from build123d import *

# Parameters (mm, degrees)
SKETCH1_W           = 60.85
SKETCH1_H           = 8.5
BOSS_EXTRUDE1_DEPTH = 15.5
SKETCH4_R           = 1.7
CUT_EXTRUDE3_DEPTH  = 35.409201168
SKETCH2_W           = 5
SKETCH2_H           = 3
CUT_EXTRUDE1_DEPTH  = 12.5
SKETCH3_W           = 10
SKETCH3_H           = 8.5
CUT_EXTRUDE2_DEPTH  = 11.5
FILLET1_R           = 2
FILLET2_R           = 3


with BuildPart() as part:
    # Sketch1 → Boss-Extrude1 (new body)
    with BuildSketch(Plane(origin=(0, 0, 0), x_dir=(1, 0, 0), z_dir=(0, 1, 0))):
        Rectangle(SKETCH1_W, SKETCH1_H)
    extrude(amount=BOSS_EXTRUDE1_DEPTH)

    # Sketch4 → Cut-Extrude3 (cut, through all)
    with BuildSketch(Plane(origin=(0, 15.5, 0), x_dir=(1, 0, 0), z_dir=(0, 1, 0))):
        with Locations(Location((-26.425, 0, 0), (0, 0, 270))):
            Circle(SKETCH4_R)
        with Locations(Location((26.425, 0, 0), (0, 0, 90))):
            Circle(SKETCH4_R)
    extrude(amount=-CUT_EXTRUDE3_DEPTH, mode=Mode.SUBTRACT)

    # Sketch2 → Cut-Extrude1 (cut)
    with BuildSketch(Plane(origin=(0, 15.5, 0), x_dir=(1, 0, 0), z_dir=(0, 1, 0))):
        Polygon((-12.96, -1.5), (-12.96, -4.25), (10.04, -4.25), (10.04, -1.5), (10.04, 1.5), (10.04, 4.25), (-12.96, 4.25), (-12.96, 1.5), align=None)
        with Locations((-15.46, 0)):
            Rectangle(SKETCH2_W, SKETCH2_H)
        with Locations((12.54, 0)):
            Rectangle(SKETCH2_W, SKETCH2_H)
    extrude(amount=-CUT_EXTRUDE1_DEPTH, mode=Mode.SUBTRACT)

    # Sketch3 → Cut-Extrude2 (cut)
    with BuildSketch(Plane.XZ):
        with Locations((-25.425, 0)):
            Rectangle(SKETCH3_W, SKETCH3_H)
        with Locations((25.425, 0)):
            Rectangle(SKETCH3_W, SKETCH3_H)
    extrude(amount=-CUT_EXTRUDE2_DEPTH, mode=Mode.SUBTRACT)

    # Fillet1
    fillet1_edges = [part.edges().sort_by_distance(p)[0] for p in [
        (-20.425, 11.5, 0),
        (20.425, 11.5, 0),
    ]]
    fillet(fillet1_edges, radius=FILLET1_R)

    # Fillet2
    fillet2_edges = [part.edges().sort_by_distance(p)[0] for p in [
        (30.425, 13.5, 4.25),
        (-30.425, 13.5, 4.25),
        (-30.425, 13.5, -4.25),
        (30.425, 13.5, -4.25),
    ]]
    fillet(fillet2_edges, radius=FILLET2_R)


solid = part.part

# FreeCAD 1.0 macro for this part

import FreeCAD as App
import Part
import Sketcher

V = App.Vector
Q = App.Units.Quantity


def edges_at(feature, points):
    """Names of the edges that pass closest to the given points."""
    edges = feature.Shape.Edges
    near = lambda p: min(range(len(edges)), key=lambda i: edges[i].distToShape(Part.Vertex(*p))[0])
    return sorted({f"Edge{near(p) + 1}" for p in points})

doc = App.newDocument("Part")
body = doc.addObject("PartDesign::Body", "Body")

# Sketch on XZ plane
sketch1 = doc.addObject("Sketcher::SketchObject", "Sketch")
body.addObject(sketch1)
sketch1.AttachmentSupport = (doc.XZ_Plane, [""])
sketch1.MapMode = "FlatFace"
sketch1.addGeometry([
    Part.LineSegment(V(-30.425, -4.25, 0), V(-30.425, 4.25, 0)),
    Part.LineSegment(V(-30.425, 4.25, 0), V(30.425, 4.25, 0)),
    Part.LineSegment(V(30.425, 4.25, 0), V(30.425, -4.25, 0)),
    Part.LineSegment(V(30.425, -4.25, 0), V(-30.425, -4.25, 0)),
], False)
sketch1.addConstraint([
    Sketcher.Constraint("Coincident", 0, 2, 1, 1),
    Sketcher.Constraint("Coincident", 1, 2, 2, 1),
    Sketcher.Constraint("Coincident", 2, 2, 3, 1),
    Sketcher.Constraint("Coincident", 3, 2, 0, 1),
    Sketcher.Constraint("Vertical", 0),
    Sketcher.Constraint("Horizontal", 1),
    Sketcher.Constraint("Vertical", 2),
    Sketcher.Constraint("Horizontal", 3),
    Sketcher.Constraint("Symmetric", 0, 2, 2, 2, -1, 1),
    Sketcher.Constraint("DistanceY", 0, 1, 0, 2, Q("8.5 mm")),
    Sketcher.Constraint("DistanceX", 1, 1, 1, 2, Q("60.85 mm")),
])
pad1 = doc.addObject("PartDesign::Pad", "Pad")
body.addObject(pad1)
pad1.Profile = sketch1
pad1.Length = 15.5
pad1.Reversed = True

# Sketch on XZ plane
sketch2 = doc.addObject("Sketcher::SketchObject", "Sketch001")
body.addObject(sketch2)
sketch2.AttachmentSupport = (doc.XZ_Plane, [""])
sketch2.MapMode = "FlatFace"
sketch2.AttachmentOffset = App.Placement(V(0, 0, -15.5), App.Rotation())
sketch2.addGeometry([
    Part.Circle(V(-26.425, 0, 0), V(0, 0, 1), 1.7),
    Part.Circle(V(26.425, 0, 0), V(0, 0, 1), 1.7),
], False)
sketch2.addConstraint([
    Sketcher.Constraint("Equal", 0, 1),
    Sketcher.Constraint("Symmetric", 0, 3, 1, 3, -1, 1),
    Sketcher.Constraint("PointOnObject", 0, 3, -1),
    Sketcher.Constraint("Diameter", 0, Q("3.4 mm")),
    Sketcher.Constraint("DistanceX", 0, 3, 1, 3, Q("52.85 mm")),
])
pocket1 = doc.addObject("PartDesign::Pocket", "Pocket")
body.addObject(pocket1)
pocket1.Profile = sketch2
pocket1.Type = "ThroughAll"
pocket1.Reversed = True

# Sketch on XZ plane
sketch3 = doc.addObject("Sketcher::SketchObject", "Sketch002")
body.addObject(sketch3)
sketch3.AttachmentSupport = (doc.XZ_Plane, [""])
sketch3.MapMode = "FlatFace"
sketch3.AttachmentOffset = App.Placement(V(0, 0, -15.5), App.Rotation())
sketch3.addGeometry([
    Part.LineSegment(V(-12.96, 4.25, 0), V(10.04, 4.25, 0)),  # 0
    Part.LineSegment(V(10.04, 4.25, 0), V(10.04, 1.5, 0)),  # 1
    Part.LineSegment(V(10.04, 1.5, 0), V(15.04, 1.5, 0)),  # 2
    Part.LineSegment(V(15.04, 1.5, 0), V(15.04, -1.5, 0)),  # 3
    Part.LineSegment(V(15.04, -1.5, 0), V(10.04, -1.5, 0)),  # 4
    Part.LineSegment(V(10.04, -1.5, 0), V(10.04, -4.25, 0)),  # 5
    Part.LineSegment(V(10.04, -4.25, 0), V(-12.96, -4.25, 0)),  # 6
    Part.LineSegment(V(-12.96, -4.25, 0), V(-12.96, -1.5, 0)),  # 7
    Part.LineSegment(V(-12.96, -1.5, 0), V(-17.96, -1.5, 0)),  # 8
    Part.LineSegment(V(-17.96, -1.5, 0), V(-17.96, 1.5, 0)),  # 9
    Part.LineSegment(V(-17.96, 1.5, 0), V(-12.96, 1.5, 0)),  # 10
    Part.LineSegment(V(-12.96, 1.5, 0), V(-12.96, 4.25, 0)),  # 11
], False)
sketch3.addConstraint([
    Sketcher.Constraint("Coincident", 0, 2, 1, 1),
    Sketcher.Constraint("Coincident", 1, 2, 2, 1),
    Sketcher.Constraint("Coincident", 2, 2, 3, 1),
    Sketcher.Constraint("Coincident", 3, 2, 4, 1),
    Sketcher.Constraint("Coincident", 4, 2, 5, 1),
    Sketcher.Constraint("Coincident", 5, 2, 6, 1),
    Sketcher.Constraint("Coincident", 6, 2, 7, 1),
    Sketcher.Constraint("Coincident", 7, 2, 8, 1),
    Sketcher.Constraint("Coincident", 8, 2, 9, 1),
    Sketcher.Constraint("Coincident", 9, 2, 10, 1),
    Sketcher.Constraint("Coincident", 10, 2, 11, 1),
    Sketcher.Constraint("Coincident", 11, 2, 0, 1),
    Sketcher.Constraint("Horizontal", 0),
    Sketcher.Constraint("Vertical", 1),
    Sketcher.Constraint("Horizontal", 2),
    Sketcher.Constraint("Vertical", 3),
    Sketcher.Constraint("Horizontal", 4),
    Sketcher.Constraint("Vertical", 5),
    Sketcher.Constraint("Horizontal", 6),
    Sketcher.Constraint("Vertical", 7),
    Sketcher.Constraint("Horizontal", 8),
    Sketcher.Constraint("Vertical", 9),
    Sketcher.Constraint("Horizontal", 10),
    Sketcher.Constraint("Vertical", 11),
    Sketcher.Constraint("Symmetric", 1, 2, 4, 2, -1),
    Sketcher.Constraint("Symmetric", 7, 2, 10, 2, -1),
    Sketcher.Constraint("Horizontal", 4, 2, 7, 2),
    Sketcher.Constraint("Equal", 4, 8),
    Sketcher.Constraint("Equal", 1, 5),
    Sketcher.Constraint("DistanceX", 0, 1, 0, 2, Q("23 mm")),
    Sketcher.Constraint("DistanceX", 2, 1, 2, 2, Q("5 mm")),
    Sketcher.Constraint("DistanceY", 3, 2, 3, 1, Q("3 mm")),
    Sketcher.Constraint("DistanceY", 1, 2, 1, 1, Q("2.75 mm")),
    Sketcher.Constraint("DistanceX", -1, 1, 0, 2, Q("10.04 mm")),
])
pocket2 = doc.addObject("PartDesign::Pocket", "Pocket001")
body.addObject(pocket2)
pocket2.Profile = sketch3
pocket2.Length = 12.5
pocket2.Reversed = True

# Sketch on XZ plane
sketch4 = doc.addObject("Sketcher::SketchObject", "Sketch003")
body.addObject(sketch4)
sketch4.AttachmentSupport = (doc.XZ_Plane, [""])
sketch4.MapMode = "FlatFace"
sketch4.addGeometry([
    Part.LineSegment(V(-30.425, 4.25, 0), V(-30.425, -4.25, 0)),  # 0
    Part.LineSegment(V(-30.425, -4.25, 0), V(-20.425, -4.25, 0)),  # 1
    Part.LineSegment(V(-20.425, -4.25, 0), V(-20.425, 4.25, 0)),  # 2
    Part.LineSegment(V(-20.425, 4.25, 0), V(-30.425, 4.25, 0)),  # 3
    Part.LineSegment(V(20.425, 4.25, 0), V(20.425, -4.25, 0)),  # 4
    Part.LineSegment(V(20.425, -4.25, 0), V(30.425, -4.25, 0)),  # 5
    Part.LineSegment(V(30.425, -4.25, 0), V(30.425, 4.25, 0)),  # 6
    Part.LineSegment(V(30.425, 4.25, 0), V(20.425, 4.25, 0)),  # 7
], False)
sketch4.addConstraint([
    Sketcher.Constraint("Coincident", 0, 2, 1, 1),
    Sketcher.Constraint("Coincident", 1, 2, 2, 1),
    Sketcher.Constraint("Coincident", 2, 2, 3, 1),
    Sketcher.Constraint("Coincident", 3, 2, 0, 1),
    Sketcher.Constraint("Coincident", 4, 2, 5, 1),
    Sketcher.Constraint("Coincident", 5, 2, 6, 1),
    Sketcher.Constraint("Coincident", 6, 2, 7, 1),
    Sketcher.Constraint("Coincident", 7, 2, 4, 1),
    Sketcher.Constraint("Vertical", 0),
    Sketcher.Constraint("Horizontal", 1),
    Sketcher.Constraint("Vertical", 2),
    Sketcher.Constraint("Horizontal", 3),
    Sketcher.Constraint("Vertical", 4),
    Sketcher.Constraint("Horizontal", 5),
    Sketcher.Constraint("Vertical", 6),
    Sketcher.Constraint("Horizontal", 7),
    Sketcher.Constraint("Symmetric", 2, 2, 4, 2, -1, 1),
    Sketcher.Constraint("Symmetric", 0, 2, 6, 2, -1, 1),
    Sketcher.Constraint("Horizontal", 1, 2, 4, 2),
    Sketcher.Constraint("DistanceX", 1, 1, 1, 2, Q("10 mm")),
    Sketcher.Constraint("DistanceY", 0, 2, 0, 1, Q("8.5 mm")),
    Sketcher.Constraint("DistanceX", 1, 2, 4, 2, Q("40.85 mm")),
])
pocket3 = doc.addObject("PartDesign::Pocket", "Pocket002")
body.addObject(pocket3)
pocket3.Profile = sketch4
pocket3.Length = 11.5
doc.recompute()

fillet = doc.addObject("PartDesign::Fillet", "Fillet")
body.addObject(fillet)
fillet.Base = (pocket3, edges_at(pocket3, [(-20.425, 11.5, 0), (20.425, 11.5, 0)]))
fillet.Radius = 2
doc.recompute()

fillet2 = doc.addObject("PartDesign::Fillet", "Fillet001")
body.addObject(fillet2)
fillet2.Base = (fillet, edges_at(fillet, [
    (30.425, 13.5, 4.25),
    (-30.425, 13.5, 4.25),
    (-30.425, 13.5, -4.25),
    (30.425, 13.5, -4.25),
]))
fillet2.Radius = 3

doc.recompute()
